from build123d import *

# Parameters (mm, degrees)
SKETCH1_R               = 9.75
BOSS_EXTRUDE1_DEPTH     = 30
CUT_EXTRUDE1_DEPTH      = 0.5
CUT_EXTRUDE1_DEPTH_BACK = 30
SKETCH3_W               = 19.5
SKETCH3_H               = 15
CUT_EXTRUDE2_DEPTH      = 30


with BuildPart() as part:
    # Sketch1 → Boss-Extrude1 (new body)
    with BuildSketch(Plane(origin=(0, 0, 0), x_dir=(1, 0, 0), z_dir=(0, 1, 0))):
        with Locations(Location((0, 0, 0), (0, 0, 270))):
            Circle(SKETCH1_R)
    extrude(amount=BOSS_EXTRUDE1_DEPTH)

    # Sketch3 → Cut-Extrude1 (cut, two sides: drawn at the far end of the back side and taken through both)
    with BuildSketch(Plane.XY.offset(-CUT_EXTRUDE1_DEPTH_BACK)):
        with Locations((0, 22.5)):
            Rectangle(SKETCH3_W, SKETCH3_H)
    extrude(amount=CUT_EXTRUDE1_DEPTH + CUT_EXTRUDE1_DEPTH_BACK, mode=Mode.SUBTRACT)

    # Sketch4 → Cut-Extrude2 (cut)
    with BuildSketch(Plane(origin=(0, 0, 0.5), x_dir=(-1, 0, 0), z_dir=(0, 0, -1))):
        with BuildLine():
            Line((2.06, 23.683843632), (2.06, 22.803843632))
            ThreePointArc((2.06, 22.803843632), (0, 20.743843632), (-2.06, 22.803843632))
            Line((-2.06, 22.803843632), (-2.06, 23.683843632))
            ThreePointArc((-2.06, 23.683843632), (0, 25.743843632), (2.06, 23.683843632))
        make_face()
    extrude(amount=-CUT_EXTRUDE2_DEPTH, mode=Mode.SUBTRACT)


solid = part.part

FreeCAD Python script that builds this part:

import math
import FreeCAD as App
import Part
import Sketcher

V = App.Vector
Q = App.Units.Quantity

doc = App.newDocument("Part")
body = doc.addObject("PartDesign::Body", "Body")

# Sketch on XZ plane
sketch1 = doc.addObject("Sketcher::SketchObject", "Sketch")
body.addObject(sketch1)
sketch1.AttachmentSupport = (doc.XZ_Plane, [""])
sketch1.MapMode = "FlatFace"
sketch1.addGeometry(Part.Circle(V(0, 0, 0), V(0, 0, 1), 10), False)
sketch1.addConstraint([
    Sketcher.Constraint("Coincident", 0, 3, -1, 1),
    Sketcher.Constraint("Diameter", 0, Q("19.5 mm")),
])
pad1 = doc.addObject("PartDesign::Pad", "Pad")
body.addObject(pad1)
pad1.Profile = sketch1
pad1.Length = 30
pad1.Reversed = True

# Sketch on XY plane
sketch2 = doc.addObject("Sketcher::SketchObject", "Sketch001")
body.addObject(sketch2)
sketch2.AttachmentSupport = (doc.XY_Plane, [""])
sketch2.MapMode = "FlatFace"
sketch2.addGeometry([
    Part.LineSegment(V(-10, 30, 0), V(-10, 15, 0)),
    Part.LineSegment(V(-10, 15, 0), V(10, 15, 0)),
    Part.LineSegment(V(10, 15, 0), V(10, 30, 0)),
    Part.LineSegment(V(10, 30, 0), V(-10, 30, 0)),
], False)
sketch2.addConstraint([
    Sketcher.Constraint("Coincident", 0, 2, 1, 1),
    Sketcher.Constraint("Coincident", 1, 2, 2, 1),
    Sketcher.Constraint("Coincident", 2, 2, 3, 1),
    Sketcher.Constraint("Coincident", 3, 2, 0, 1),
    Sketcher.Constraint("Vertical", 0),
    Sketcher.Constraint("Horizontal", 1),
    Sketcher.Constraint("Vertical", 2),
    Sketcher.Constraint("Horizontal", 3),
    Sketcher.Constraint("DistanceY", 0, 2, 0, 1, Q("15 mm")),
    Sketcher.Constraint("DistanceX", 1, 1, 1, 2, Q("19.5 mm")),
    Sketcher.Constraint("DistanceY", -1, 1, 0, 2, Q("15 mm")),
    Sketcher.Constraint("DistanceX", 0, 2, -1, 1, Q("9.75 mm")),
])
pocket1 = doc.addObject("PartDesign::Pocket", "Pocket")
body.addObject(pocket1)
pocket1.Profile = sketch2
pocket1.Type = "TwoLengths"
pocket1.Length = 0.5
pocket1.Length2 = 30
pocket1.Reversed = True

# Sketch on XY plane
sketch3 = doc.addObject("Sketcher::SketchObject", "Sketch002")
body.addObject(sketch3)
sketch3.AttachmentSupport = (doc.XY_Plane, [""])
sketch3.MapMode = "FlatFace"
sketch3.AttachmentOffset = App.Placement(V(0, 0, 0.5), App.Rotation())
sketch3.addGeometry([
    Part.LineSegment(V(-2.1, 22.8, 0), V(-2.1, 23.7, 0)),
    Part.ArcOfCircle(Part.Circle(V(0, 23.7, 0), V(0, 0, 1), 2.1), math.radians(0), math.radians(180)),
    Part.LineSegment(V(2.1, 23.7, 0), V(2.1, 22.8, 0)),
    Part.ArcOfCircle(Part.Circle(V(0, 22.8, 0), V(0, 0, 1), 2.1), math.radians(180), math.radians(360)),
], False)
sketch3.addConstraint([
    Sketcher.Constraint("Tangent", 0, 2, 1, 2),
    Sketcher.Constraint("Tangent", 1, 1, 2, 1),
    Sketcher.Constraint("Tangent", 2, 2, 3, 2),
    Sketcher.Constraint("Tangent", 3, 1, 0, 1),
    Sketcher.Constraint("Vertical", 0),
    Sketcher.Constraint("Vertical", 2),
    Sketcher.Constraint("PointOnObject", 1, 3, -2),
    Sketcher.Constraint("Radius", 1, Q("2.06 mm")),
    Sketcher.Constraint("DistanceY", 0, 1, 0, 2, Q("0.88 mm")),
    Sketcher.Constraint("DistanceY", -1, 1, 1, 3, Q("23.683844 mm")),
])
pocket2 = doc.addObject("PartDesign::Pocket", "Pocket001")
body.addObject(pocket2)
pocket2.Profile = sketch3
pocket2.Length = 30
pocket2.Reversed = True

doc.recompute()
